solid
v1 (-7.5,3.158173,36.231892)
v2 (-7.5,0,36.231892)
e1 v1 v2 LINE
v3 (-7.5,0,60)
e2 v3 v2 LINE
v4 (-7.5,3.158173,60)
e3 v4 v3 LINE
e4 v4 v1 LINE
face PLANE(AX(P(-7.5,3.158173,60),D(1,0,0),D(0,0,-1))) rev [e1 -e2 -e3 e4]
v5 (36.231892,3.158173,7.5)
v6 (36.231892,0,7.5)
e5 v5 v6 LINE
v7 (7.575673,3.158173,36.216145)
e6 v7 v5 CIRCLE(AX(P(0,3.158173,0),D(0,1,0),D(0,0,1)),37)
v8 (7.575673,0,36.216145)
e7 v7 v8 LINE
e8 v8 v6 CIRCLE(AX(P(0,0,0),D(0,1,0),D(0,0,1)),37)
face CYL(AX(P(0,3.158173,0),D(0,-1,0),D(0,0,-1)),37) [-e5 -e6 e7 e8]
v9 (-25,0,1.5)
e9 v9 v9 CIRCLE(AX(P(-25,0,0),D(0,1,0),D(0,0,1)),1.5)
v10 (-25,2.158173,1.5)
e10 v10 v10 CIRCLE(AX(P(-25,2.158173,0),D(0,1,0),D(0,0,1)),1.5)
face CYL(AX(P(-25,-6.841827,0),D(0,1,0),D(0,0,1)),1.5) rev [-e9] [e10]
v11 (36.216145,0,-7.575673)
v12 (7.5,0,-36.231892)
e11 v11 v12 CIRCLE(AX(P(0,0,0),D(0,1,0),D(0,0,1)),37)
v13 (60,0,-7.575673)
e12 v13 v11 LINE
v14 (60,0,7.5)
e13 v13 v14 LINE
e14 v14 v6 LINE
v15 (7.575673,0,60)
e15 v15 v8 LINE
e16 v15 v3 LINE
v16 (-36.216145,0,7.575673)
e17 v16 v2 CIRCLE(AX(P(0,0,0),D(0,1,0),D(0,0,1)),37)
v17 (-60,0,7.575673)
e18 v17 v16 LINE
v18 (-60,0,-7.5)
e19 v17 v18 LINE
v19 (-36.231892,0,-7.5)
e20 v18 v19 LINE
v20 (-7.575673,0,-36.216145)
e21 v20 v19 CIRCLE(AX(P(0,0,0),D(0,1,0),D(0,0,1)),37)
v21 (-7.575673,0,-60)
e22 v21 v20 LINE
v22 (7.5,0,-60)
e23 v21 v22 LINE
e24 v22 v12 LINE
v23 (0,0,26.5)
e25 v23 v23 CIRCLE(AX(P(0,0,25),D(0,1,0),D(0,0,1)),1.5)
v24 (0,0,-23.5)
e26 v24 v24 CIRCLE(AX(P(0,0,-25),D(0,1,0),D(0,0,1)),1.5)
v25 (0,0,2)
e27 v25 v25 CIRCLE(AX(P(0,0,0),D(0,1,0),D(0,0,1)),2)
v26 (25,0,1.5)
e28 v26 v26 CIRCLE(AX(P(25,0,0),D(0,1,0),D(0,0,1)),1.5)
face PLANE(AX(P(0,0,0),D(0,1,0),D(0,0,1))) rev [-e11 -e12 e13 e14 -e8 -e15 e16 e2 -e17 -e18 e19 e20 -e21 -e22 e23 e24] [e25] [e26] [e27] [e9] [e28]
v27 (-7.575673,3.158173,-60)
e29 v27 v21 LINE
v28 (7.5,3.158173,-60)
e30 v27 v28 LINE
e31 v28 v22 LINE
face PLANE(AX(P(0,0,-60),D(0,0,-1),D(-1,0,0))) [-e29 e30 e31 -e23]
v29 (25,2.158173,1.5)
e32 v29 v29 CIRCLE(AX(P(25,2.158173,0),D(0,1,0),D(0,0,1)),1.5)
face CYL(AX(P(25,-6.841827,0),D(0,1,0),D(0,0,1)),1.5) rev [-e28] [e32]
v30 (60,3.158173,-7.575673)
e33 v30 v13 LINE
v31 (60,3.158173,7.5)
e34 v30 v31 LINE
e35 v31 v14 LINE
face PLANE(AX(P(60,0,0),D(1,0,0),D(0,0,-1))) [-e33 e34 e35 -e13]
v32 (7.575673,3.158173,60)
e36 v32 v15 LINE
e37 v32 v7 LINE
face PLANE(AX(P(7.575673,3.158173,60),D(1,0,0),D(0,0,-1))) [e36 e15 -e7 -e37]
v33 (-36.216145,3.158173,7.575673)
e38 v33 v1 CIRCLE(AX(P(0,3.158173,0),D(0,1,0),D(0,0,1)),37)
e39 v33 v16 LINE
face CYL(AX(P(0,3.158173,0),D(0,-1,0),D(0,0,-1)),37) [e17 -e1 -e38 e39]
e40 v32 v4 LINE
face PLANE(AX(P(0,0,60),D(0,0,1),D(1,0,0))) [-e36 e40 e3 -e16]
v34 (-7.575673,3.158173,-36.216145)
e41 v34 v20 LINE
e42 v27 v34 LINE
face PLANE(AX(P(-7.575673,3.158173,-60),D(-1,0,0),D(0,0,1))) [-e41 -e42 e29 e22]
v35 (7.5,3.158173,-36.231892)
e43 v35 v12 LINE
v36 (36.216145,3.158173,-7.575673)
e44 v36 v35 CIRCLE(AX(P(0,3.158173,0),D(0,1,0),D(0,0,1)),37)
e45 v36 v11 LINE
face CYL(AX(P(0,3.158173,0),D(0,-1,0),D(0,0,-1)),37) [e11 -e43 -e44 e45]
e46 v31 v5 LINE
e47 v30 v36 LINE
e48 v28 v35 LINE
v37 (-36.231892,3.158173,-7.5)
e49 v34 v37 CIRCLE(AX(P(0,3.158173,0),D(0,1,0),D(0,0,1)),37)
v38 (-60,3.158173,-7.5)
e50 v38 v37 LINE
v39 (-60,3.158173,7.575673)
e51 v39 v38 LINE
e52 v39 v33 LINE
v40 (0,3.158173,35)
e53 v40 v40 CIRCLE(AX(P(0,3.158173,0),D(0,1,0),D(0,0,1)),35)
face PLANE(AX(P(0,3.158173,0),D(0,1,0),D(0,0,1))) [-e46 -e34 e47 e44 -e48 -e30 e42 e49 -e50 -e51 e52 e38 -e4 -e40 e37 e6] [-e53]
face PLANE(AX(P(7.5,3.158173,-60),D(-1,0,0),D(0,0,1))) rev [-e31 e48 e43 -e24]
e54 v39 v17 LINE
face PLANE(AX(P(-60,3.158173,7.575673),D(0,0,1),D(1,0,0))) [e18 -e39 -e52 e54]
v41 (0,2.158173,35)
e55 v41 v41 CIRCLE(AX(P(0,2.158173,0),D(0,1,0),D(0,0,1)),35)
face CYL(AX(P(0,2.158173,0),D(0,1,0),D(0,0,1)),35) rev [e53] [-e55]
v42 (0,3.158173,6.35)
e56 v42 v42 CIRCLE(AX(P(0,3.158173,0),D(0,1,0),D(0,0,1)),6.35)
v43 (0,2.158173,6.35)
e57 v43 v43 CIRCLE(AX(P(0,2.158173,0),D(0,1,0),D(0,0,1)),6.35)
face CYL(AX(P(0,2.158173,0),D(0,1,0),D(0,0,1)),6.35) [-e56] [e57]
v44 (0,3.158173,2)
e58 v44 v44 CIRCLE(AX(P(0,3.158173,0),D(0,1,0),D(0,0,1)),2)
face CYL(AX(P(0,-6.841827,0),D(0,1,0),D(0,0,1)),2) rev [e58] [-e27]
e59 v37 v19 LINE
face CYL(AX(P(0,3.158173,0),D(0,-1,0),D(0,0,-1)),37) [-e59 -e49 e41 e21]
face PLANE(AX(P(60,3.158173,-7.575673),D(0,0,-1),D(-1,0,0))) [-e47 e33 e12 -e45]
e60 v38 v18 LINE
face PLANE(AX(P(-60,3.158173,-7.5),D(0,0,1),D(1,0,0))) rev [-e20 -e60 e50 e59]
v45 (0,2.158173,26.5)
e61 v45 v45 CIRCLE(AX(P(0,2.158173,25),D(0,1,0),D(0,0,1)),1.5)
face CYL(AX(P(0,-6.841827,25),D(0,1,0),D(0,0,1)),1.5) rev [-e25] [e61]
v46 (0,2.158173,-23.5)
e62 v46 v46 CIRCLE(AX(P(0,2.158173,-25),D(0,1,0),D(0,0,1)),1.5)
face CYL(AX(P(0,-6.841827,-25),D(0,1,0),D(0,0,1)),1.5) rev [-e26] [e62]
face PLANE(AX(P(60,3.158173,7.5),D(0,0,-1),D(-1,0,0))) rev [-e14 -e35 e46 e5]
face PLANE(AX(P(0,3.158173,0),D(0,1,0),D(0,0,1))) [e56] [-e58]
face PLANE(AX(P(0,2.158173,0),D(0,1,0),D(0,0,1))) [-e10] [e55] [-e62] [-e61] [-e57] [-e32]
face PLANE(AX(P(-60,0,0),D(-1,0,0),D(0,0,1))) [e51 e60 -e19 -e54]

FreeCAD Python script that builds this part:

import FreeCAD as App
import Part
import Sketcher
from FreeCAD import Vector
Q = App.Units.Quantity


def add_polygon(sketch, points):
    """Adds a closed chain of lines whose ends are joined by coincident constraints."""
    first, n = sketch.GeometryCount, len(points)
    for a, b in zip(points, points[1:] + points[:1]):
        sketch.addGeometry(Part.LineSegment(App.Vector(*a, 0), App.Vector(*b, 0)), False)
    for i in range(n):
        sketch.addConstraint(Sketcher.Constraint("Coincident", first + i, 2, first + (i + 1) % n, 1))

doc = App.newDocument("Part")
params = doc.addObject("Spreadsheet::Sheet", "Params")
for row, (alias, value) in enumerate([
    ("sketch1_diameter", "74 mm"),
    ("pad1_length", "3.158173 mm"),
    ("pad2_length", "60 mm"),
    ("sketch3_diameter", "70 mm"),
    ("sketch3_diameter2", "12.7 mm"),
    ("pocket1_length", "1 mm"),
    ("sketch4_diameter", "4 mm"),
    ("pocket2_length", "10 mm"),
    ("sketch5_diameter", "3 mm"),
    ("pocket3_length", "10 mm"),
], start=1):
    params.set(f"A{row}", alias)
    params.set(f"B{row}", "=" + value)
    params.setAlias(f"B{row}", alias)

body = doc.addObject("PartDesign::Body", "Body")

sketch1 = doc.addObject("Sketcher::SketchObject", "Sketch")
body.addObject(sketch1)
sketch1.AttachmentSupport = (doc.XZ_Plane, [""])
sketch1.MapMode = "FlatFace"
sketch1.addGeometry(Part.Circle(Vector(0, 0, 0), Vector(0, 0, 1), 37), False)
sketch1.addConstraint(Sketcher.Constraint("Coincident", 0, 3, -1, 1))
sketch1.addConstraint(Sketcher.Constraint("Diameter", 0, Q("74 mm")))
sketch1.setExpression("Constraints[1]", "Params.sketch1_diameter")
pad1 = doc.addObject("PartDesign::Pad", "Pad")
body.addObject(pad1)
pad1.Profile = sketch1
pad1.setExpression("Length", "Params.pad1_length")
pad1.Reversed = True

sketch2 = doc.addObject("Sketcher::SketchObject", "Sketch001")
body.addObject(sketch2)
sketch2.AttachmentSupport = (doc.XY_Plane, [""])
sketch2.MapMode = "FlatFace"
add_polygon(sketch2, [(7.6, 0), (7.6, 3.2), (-7.5, 3.2), (-7.5, 0)])
sketch2.addConstraint(Sketcher.Constraint("Vertical", 0))
sketch2.addConstraint(Sketcher.Constraint("Horizontal", 1))
sketch2.addConstraint(Sketcher.Constraint("Vertical", 2))
sketch2.addConstraint(Sketcher.Constraint("Horizontal", 3))
sketch2.addConstraint(Sketcher.Constraint("PointOnObject", 2, 2, -1))
sketch2.addConstraint(Sketcher.Constraint("DistanceX", 1, 2, -1, 1, Q("7.5 mm")))
sketch2.addConstraint(Sketcher.Constraint("DistanceX", 1, 2, 1, 1, Q("15.075673 mm")))
sketch2.addConstraint(Sketcher.Constraint("DistanceY", 0, 1, 0, 2, Q("3.158173 mm")))
pad2 = doc.addObject("PartDesign::Pad", "Pad001")
body.addObject(pad2)
pad2.Profile = sketch2
pad2.setExpression("Length", "Params.pad2_length")
doc.recompute()

polarpattern = doc.addObject("PartDesign::PolarPattern", "PolarPattern")
body.addObject(polarpattern)
polarpattern.Originals = [pad2]
polarpattern.Axis = (doc.Y_Axis, [""])
polarpattern.Angle = 360
polarpattern.Occurrences = 4
body.Tip = polarpattern

sketch3 = doc.addObject("Sketcher::SketchObject", "Sketch002")
body.addObject(sketch3)
sketch3.AttachmentSupport = (doc.XZ_Plane, [""])
sketch3.MapMode = "FlatFace"
sketch3.AttachmentOffset = App.Placement(Vector(0, 0, -3.158173), App.Rotation())
sketch3.addGeometry(Part.Circle(Vector(0, 0, 0), Vector(0, 0, 1), 35), False)
sketch3.addGeometry(Part.Circle(Vector(0, 0, 0), Vector(0, 0, 1), 6), False)
sketch3.addConstraint(Sketcher.Constraint("Coincident", 0, 3, -1, 1))
sketch3.addConstraint(Sketcher.Constraint("Coincident", 1, 3, -1, 1))
sketch3.addConstraint(Sketcher.Constraint("Diameter", 0, Q("70 mm")))
sketch3.addConstraint(Sketcher.Constraint("Diameter", 1, Q("12.7 mm")))
sketch3.setExpression("Constraints[2]", "Params.sketch3_diameter")
sketch3.setExpression("Constraints[3]", "Params.sketch3_diameter2")
pocket1 = doc.addObject("PartDesign::Pocket", "Pocket")
body.addObject(pocket1)
pocket1.Profile = sketch3
pocket1.setExpression("Length", "Params.pocket1_length")
pocket1.Reversed = True

sketch4 = doc.addObject("Sketcher::SketchObject", "Sketch003")
body.addObject(sketch4)
sketch4.AttachmentSupport = (doc.XZ_Plane, [""])
sketch4.MapMode = "FlatFace"
sketch4.AttachmentOffset = App.Placement(Vector(0, 0, -3.158173), App.Rotation())
sketch4.addGeometry(Part.Circle(Vector(0, 0, 0), Vector(0, 0, 1), 2), False)
sketch4.addConstraint(Sketcher.Constraint("Coincident", 0, 3, -1, 1))
sketch4.addConstraint(Sketcher.Constraint("Diameter", 0, Q("4 mm")))
sketch4.setExpression("Constraints[1]", "Params.sketch4_diameter")
pocket2 = doc.addObject("PartDesign::Pocket", "Pocket001")
body.addObject(pocket2)
pocket2.Profile = sketch4
pocket2.setExpression("Length", "Params.pocket2_length")
pocket2.Reversed = True

sketch5 = doc.addObject("Sketcher::SketchObject", "Sketch004")
body.addObject(sketch5)
sketch5.AttachmentSupport = (doc.XZ_Plane, [""])
sketch5.MapMode = "FlatFace"
sketch5.AttachmentOffset = App.Placement(Vector(0, 0, -3.158173), App.Rotation())
sketch5.addGeometry(Part.Circle(Vector(0, -25, 0), Vector(0, 0, 1), 1.5), False)
sketch5.addConstraint(Sketcher.Constraint("PointOnObject", 0, 3, -2))
sketch5.addConstraint(Sketcher.Constraint("Diameter", 0, Q("3 mm")))
sketch5.addConstraint(Sketcher.Constraint("DistanceY", 0, 3, -1, 1, Q("25 mm")))
sketch5.setExpression("Constraints[1]", "Params.sketch5_diameter")
pocket3 = doc.addObject("PartDesign::Pocket", "Pocket002")
body.addObject(pocket3)
pocket3.Profile = sketch5
pocket3.setExpression("Length", "Params.pocket3_length")
pocket3.Reversed = True
doc.recompute()

polarpattern2 = doc.addObject("PartDesign::PolarPattern", "PolarPattern001")
body.addObject(polarpattern2)
polarpattern2.Originals = [pocket3]
polarpattern2.Axis = (doc.Y_Axis, [""])
polarpattern2.Angle = 360
polarpattern2.Occurrences = 4
body.Tip = polarpattern2

doc.recompute()
